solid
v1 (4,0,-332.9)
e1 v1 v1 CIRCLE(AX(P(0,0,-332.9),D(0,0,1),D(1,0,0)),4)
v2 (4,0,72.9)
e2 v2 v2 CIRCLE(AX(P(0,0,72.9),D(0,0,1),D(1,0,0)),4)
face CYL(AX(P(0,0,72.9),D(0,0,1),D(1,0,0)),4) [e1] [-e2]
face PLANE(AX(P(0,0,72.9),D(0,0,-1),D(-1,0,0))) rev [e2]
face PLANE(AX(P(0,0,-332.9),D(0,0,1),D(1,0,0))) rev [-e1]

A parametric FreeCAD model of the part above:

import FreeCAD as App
import Part
import Sketcher
from FreeCAD import Vector
Q = App.Units.Quantity


def add_polygon(sketch, points):
    """Adds a closed chain of lines whose ends are joined by coincident constraints."""
    first, n = sketch.GeometryCount, len(points)
    for a, b in zip(points, points[1:] + points[:1]):
        sketch.addGeometry(Part.LineSegment(App.Vector(*a, 0), App.Vector(*b, 0)), False)
    for i in range(n):
        sketch.addConstraint(Sketcher.Constraint("Coincident", first + i, 2, first + (i + 1) % n, 1))

doc = App.newDocument("Part")
params = doc.addObject("Spreadsheet::Sheet", "Params")
for row, (alias, value) in enumerate([
    ("sketch1_width", "4 mm"),
    ("sketch1_height", "405.8 mm"),
    ("revolution_angle", "360 deg"),
], start=1):
    params.set(f"A{row}", alias)
    params.set(f"B{row}", "=" + value)
    params.setAlias(f"B{row}", alias)

body = doc.addObject("PartDesign::Body", "Body")

# Sketch on YZ plane
sketch1 = body.newObject("Sketcher::SketchObject", "Sketch")
sketch1.AttachmentSupport = (doc.getObject("YZ_Plane"), [""])
sketch1.MapMode = "FlatFace"
add_polygon(sketch1, [(4, 72.9), (0, 72.9), (0, -332.9), (4, -332.9)])  # lines 0-3
sketch1.addConstraint(Sketcher.Constraint("Horizontal", 0))
sketch1.addConstraint(Sketcher.Constraint("Vertical", 1))
sketch1.addConstraint(Sketcher.Constraint("Horizontal", 2))
sketch1.addConstraint(Sketcher.Constraint("Vertical", 3))
sketch1.addConstraint(Sketcher.Constraint("PointOnObject", 0, 2, -2))
sketch1.addConstraint(Sketcher.Constraint("DistanceX", 0, 2, 0, 1, Q("4 mm")))
sketch1.addConstraint(Sketcher.Constraint("DistanceY", 1, 2, 1, 1, Q("405.8 mm")))
sketch1.addConstraint(Sketcher.Constraint("DistanceY", -1, 1, 0, 2, Q("72.9 mm")))
sketch1.setExpression("Constraints[9]", "Params.sketch1_width")
sketch1.setExpression("Constraints[10]", "Params.sketch1_height")
revolution = body.newObject("PartDesign::Revolution", "Revolution")
revolution.Profile = sketch1
revolution.ReferenceAxis = (sketch1, ["V_Axis"])
revolution.setExpression("Angle", "Params.revolution_angle")

doc.recompute()
